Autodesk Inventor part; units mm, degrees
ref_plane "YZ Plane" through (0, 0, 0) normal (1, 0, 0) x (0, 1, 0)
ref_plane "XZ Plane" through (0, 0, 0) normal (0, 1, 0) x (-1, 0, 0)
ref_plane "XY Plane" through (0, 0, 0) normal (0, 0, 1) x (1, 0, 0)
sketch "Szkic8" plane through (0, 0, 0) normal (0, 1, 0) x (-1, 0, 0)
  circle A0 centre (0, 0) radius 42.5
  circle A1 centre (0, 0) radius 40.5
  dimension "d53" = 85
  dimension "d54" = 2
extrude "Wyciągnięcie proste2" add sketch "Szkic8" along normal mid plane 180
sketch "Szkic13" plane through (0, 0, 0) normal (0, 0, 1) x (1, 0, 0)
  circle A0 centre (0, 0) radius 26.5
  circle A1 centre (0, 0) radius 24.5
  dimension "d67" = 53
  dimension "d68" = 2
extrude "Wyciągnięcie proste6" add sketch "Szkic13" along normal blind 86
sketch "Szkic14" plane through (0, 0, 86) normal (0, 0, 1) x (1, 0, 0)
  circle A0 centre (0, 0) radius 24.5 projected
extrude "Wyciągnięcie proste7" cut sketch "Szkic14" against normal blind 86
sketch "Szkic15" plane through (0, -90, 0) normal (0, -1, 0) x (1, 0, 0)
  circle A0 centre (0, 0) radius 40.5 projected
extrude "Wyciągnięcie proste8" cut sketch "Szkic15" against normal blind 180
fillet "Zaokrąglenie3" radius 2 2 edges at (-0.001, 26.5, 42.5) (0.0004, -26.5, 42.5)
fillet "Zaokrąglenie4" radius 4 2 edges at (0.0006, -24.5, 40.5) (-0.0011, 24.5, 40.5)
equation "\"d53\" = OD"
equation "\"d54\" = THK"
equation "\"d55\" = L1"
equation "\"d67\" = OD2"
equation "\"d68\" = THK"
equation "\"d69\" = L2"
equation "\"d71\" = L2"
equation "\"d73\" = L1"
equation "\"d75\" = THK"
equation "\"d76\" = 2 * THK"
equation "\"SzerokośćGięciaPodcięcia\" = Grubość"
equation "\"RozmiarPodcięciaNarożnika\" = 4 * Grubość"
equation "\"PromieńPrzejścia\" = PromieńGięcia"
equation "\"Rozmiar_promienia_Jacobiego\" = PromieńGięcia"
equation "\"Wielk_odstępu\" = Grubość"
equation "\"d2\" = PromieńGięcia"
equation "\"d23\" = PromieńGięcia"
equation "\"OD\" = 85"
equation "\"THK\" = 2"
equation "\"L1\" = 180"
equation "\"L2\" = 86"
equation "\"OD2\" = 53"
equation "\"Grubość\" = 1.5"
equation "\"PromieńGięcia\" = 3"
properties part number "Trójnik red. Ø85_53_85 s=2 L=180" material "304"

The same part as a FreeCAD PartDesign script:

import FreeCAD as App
import Part
import Sketcher
from FreeCAD import Vector


def edges_at(feature, points):
    """Names of the edges that pass closest to the given points."""
    edges = feature.Shape.Edges
    near = lambda p: min(range(len(edges)), key=lambda i: edges[i].distToShape(Part.Vertex(*p))[0])
    return sorted({f"Edge{near(p) + 1}" for p in points})

doc = App.newDocument("Part")
body = doc.addObject("PartDesign::Body", "Body")

sketch1 = body.newObject("Sketcher::SketchObject", "Sketch")
sketch1.AttachmentSupport = (doc.getObject("XZ_Plane"), [""])
sketch1.MapMode = "FlatFace"
sketch1.addGeometry(Part.Circle(Vector(0, 0, 0), Vector(0, 0, 1), 42), False)
sketch1.addGeometry(Part.Circle(Vector(0, 0, 0), Vector(0, 0, 1), 40), False)
sketch1.addConstraint(Sketcher.Constraint("Coincident", 0, 3, -1, 1))
sketch1.addConstraint(Sketcher.Constraint("Coincident", 1, 3, -1, 1))
sketch1.addConstraint(Sketcher.Constraint("Diameter", 0, 85.0))
sketch1.addConstraint(Sketcher.Constraint("Diameter", 1, 81.0))
pad1 = body.newObject("PartDesign::Pad", "Pad")
pad1.Profile = sketch1
pad1.Length = 180
pad1.Midplane = True

sketch2 = body.newObject("Sketcher::SketchObject", "Sketch001")
sketch2.AttachmentSupport = (doc.getObject("XY_Plane"), [""])
sketch2.MapMode = "FlatFace"
sketch2.addGeometry(Part.Circle(Vector(0, 0, 0), Vector(0, 0, 1), 26), False)
sketch2.addGeometry(Part.Circle(Vector(0, 0, 0), Vector(0, 0, 1), 24), False)
sketch2.addConstraint(Sketcher.Constraint("Coincident", 0, 3, -1, 1))
sketch2.addConstraint(Sketcher.Constraint("Coincident", 1, 3, -1, 1))
sketch2.addConstraint(Sketcher.Constraint("Diameter", 0, 53.0))
sketch2.addConstraint(Sketcher.Constraint("Diameter", 1, 49.0))
pad2 = body.newObject("PartDesign::Pad", "Pad001")
pad2.Profile = sketch2
pad2.Length = 86

sketch3 = body.newObject("Sketcher::SketchObject", "Sketch002")
sketch3.AttachmentSupport = (doc.getObject("XY_Plane"), [""])
sketch3.MapMode = "FlatFace"
sketch3.AttachmentOffset = App.Placement(Vector(0, 0, 86), App.Rotation())
sketch3.addGeometry(Part.Circle(Vector(0, 0, 0), Vector(0, 0, 1), 24), False)
sketch3.addConstraint(Sketcher.Constraint("Coincident", 0, 3, -1, 1))
sketch3.addConstraint(Sketcher.Constraint("Diameter", 0, 49.0))
pocket1 = body.newObject("PartDesign::Pocket", "Pocket")
pocket1.Profile = sketch3
pocket1.Length = 86

sketch4 = body.newObject("Sketcher::SketchObject", "Sketch003")
sketch4.AttachmentSupport = (doc.getObject("XZ_Plane"), [""])
sketch4.MapMode = "FlatFace"
sketch4.AttachmentOffset = App.Placement(Vector(0, 0, 90), App.Rotation())
sketch4.addGeometry(Part.Circle(Vector(0, 0, 0), Vector(0, 0, 1), 40), False)
sketch4.addConstraint(Sketcher.Constraint("Coincident", 0, 3, -1, 1))
sketch4.addConstraint(Sketcher.Constraint("Diameter", 0, 81.0))
pocket2 = body.newObject("PartDesign::Pocket", "Pocket001")
pocket2.Profile = sketch4
pocket2.Length = 180
doc.recompute()

fillet = body.newObject("PartDesign::Fillet", "Fillet")
fillet.Base = (pocket2, edges_at(pocket2, [(-0.001, 26.5, 42.5), (0, -26.5, 42.5)]))
fillet.Radius = 2
doc.recompute()

fillet2 = body.newObject("PartDesign::Fillet", "Fillet001")
fillet2.Base = (fillet, edges_at(fillet, [(0.001, -24.5, 40.5), (-0.001, 24.5, 40.5)]))
fillet2.Radius = 4

doc.recompute()
